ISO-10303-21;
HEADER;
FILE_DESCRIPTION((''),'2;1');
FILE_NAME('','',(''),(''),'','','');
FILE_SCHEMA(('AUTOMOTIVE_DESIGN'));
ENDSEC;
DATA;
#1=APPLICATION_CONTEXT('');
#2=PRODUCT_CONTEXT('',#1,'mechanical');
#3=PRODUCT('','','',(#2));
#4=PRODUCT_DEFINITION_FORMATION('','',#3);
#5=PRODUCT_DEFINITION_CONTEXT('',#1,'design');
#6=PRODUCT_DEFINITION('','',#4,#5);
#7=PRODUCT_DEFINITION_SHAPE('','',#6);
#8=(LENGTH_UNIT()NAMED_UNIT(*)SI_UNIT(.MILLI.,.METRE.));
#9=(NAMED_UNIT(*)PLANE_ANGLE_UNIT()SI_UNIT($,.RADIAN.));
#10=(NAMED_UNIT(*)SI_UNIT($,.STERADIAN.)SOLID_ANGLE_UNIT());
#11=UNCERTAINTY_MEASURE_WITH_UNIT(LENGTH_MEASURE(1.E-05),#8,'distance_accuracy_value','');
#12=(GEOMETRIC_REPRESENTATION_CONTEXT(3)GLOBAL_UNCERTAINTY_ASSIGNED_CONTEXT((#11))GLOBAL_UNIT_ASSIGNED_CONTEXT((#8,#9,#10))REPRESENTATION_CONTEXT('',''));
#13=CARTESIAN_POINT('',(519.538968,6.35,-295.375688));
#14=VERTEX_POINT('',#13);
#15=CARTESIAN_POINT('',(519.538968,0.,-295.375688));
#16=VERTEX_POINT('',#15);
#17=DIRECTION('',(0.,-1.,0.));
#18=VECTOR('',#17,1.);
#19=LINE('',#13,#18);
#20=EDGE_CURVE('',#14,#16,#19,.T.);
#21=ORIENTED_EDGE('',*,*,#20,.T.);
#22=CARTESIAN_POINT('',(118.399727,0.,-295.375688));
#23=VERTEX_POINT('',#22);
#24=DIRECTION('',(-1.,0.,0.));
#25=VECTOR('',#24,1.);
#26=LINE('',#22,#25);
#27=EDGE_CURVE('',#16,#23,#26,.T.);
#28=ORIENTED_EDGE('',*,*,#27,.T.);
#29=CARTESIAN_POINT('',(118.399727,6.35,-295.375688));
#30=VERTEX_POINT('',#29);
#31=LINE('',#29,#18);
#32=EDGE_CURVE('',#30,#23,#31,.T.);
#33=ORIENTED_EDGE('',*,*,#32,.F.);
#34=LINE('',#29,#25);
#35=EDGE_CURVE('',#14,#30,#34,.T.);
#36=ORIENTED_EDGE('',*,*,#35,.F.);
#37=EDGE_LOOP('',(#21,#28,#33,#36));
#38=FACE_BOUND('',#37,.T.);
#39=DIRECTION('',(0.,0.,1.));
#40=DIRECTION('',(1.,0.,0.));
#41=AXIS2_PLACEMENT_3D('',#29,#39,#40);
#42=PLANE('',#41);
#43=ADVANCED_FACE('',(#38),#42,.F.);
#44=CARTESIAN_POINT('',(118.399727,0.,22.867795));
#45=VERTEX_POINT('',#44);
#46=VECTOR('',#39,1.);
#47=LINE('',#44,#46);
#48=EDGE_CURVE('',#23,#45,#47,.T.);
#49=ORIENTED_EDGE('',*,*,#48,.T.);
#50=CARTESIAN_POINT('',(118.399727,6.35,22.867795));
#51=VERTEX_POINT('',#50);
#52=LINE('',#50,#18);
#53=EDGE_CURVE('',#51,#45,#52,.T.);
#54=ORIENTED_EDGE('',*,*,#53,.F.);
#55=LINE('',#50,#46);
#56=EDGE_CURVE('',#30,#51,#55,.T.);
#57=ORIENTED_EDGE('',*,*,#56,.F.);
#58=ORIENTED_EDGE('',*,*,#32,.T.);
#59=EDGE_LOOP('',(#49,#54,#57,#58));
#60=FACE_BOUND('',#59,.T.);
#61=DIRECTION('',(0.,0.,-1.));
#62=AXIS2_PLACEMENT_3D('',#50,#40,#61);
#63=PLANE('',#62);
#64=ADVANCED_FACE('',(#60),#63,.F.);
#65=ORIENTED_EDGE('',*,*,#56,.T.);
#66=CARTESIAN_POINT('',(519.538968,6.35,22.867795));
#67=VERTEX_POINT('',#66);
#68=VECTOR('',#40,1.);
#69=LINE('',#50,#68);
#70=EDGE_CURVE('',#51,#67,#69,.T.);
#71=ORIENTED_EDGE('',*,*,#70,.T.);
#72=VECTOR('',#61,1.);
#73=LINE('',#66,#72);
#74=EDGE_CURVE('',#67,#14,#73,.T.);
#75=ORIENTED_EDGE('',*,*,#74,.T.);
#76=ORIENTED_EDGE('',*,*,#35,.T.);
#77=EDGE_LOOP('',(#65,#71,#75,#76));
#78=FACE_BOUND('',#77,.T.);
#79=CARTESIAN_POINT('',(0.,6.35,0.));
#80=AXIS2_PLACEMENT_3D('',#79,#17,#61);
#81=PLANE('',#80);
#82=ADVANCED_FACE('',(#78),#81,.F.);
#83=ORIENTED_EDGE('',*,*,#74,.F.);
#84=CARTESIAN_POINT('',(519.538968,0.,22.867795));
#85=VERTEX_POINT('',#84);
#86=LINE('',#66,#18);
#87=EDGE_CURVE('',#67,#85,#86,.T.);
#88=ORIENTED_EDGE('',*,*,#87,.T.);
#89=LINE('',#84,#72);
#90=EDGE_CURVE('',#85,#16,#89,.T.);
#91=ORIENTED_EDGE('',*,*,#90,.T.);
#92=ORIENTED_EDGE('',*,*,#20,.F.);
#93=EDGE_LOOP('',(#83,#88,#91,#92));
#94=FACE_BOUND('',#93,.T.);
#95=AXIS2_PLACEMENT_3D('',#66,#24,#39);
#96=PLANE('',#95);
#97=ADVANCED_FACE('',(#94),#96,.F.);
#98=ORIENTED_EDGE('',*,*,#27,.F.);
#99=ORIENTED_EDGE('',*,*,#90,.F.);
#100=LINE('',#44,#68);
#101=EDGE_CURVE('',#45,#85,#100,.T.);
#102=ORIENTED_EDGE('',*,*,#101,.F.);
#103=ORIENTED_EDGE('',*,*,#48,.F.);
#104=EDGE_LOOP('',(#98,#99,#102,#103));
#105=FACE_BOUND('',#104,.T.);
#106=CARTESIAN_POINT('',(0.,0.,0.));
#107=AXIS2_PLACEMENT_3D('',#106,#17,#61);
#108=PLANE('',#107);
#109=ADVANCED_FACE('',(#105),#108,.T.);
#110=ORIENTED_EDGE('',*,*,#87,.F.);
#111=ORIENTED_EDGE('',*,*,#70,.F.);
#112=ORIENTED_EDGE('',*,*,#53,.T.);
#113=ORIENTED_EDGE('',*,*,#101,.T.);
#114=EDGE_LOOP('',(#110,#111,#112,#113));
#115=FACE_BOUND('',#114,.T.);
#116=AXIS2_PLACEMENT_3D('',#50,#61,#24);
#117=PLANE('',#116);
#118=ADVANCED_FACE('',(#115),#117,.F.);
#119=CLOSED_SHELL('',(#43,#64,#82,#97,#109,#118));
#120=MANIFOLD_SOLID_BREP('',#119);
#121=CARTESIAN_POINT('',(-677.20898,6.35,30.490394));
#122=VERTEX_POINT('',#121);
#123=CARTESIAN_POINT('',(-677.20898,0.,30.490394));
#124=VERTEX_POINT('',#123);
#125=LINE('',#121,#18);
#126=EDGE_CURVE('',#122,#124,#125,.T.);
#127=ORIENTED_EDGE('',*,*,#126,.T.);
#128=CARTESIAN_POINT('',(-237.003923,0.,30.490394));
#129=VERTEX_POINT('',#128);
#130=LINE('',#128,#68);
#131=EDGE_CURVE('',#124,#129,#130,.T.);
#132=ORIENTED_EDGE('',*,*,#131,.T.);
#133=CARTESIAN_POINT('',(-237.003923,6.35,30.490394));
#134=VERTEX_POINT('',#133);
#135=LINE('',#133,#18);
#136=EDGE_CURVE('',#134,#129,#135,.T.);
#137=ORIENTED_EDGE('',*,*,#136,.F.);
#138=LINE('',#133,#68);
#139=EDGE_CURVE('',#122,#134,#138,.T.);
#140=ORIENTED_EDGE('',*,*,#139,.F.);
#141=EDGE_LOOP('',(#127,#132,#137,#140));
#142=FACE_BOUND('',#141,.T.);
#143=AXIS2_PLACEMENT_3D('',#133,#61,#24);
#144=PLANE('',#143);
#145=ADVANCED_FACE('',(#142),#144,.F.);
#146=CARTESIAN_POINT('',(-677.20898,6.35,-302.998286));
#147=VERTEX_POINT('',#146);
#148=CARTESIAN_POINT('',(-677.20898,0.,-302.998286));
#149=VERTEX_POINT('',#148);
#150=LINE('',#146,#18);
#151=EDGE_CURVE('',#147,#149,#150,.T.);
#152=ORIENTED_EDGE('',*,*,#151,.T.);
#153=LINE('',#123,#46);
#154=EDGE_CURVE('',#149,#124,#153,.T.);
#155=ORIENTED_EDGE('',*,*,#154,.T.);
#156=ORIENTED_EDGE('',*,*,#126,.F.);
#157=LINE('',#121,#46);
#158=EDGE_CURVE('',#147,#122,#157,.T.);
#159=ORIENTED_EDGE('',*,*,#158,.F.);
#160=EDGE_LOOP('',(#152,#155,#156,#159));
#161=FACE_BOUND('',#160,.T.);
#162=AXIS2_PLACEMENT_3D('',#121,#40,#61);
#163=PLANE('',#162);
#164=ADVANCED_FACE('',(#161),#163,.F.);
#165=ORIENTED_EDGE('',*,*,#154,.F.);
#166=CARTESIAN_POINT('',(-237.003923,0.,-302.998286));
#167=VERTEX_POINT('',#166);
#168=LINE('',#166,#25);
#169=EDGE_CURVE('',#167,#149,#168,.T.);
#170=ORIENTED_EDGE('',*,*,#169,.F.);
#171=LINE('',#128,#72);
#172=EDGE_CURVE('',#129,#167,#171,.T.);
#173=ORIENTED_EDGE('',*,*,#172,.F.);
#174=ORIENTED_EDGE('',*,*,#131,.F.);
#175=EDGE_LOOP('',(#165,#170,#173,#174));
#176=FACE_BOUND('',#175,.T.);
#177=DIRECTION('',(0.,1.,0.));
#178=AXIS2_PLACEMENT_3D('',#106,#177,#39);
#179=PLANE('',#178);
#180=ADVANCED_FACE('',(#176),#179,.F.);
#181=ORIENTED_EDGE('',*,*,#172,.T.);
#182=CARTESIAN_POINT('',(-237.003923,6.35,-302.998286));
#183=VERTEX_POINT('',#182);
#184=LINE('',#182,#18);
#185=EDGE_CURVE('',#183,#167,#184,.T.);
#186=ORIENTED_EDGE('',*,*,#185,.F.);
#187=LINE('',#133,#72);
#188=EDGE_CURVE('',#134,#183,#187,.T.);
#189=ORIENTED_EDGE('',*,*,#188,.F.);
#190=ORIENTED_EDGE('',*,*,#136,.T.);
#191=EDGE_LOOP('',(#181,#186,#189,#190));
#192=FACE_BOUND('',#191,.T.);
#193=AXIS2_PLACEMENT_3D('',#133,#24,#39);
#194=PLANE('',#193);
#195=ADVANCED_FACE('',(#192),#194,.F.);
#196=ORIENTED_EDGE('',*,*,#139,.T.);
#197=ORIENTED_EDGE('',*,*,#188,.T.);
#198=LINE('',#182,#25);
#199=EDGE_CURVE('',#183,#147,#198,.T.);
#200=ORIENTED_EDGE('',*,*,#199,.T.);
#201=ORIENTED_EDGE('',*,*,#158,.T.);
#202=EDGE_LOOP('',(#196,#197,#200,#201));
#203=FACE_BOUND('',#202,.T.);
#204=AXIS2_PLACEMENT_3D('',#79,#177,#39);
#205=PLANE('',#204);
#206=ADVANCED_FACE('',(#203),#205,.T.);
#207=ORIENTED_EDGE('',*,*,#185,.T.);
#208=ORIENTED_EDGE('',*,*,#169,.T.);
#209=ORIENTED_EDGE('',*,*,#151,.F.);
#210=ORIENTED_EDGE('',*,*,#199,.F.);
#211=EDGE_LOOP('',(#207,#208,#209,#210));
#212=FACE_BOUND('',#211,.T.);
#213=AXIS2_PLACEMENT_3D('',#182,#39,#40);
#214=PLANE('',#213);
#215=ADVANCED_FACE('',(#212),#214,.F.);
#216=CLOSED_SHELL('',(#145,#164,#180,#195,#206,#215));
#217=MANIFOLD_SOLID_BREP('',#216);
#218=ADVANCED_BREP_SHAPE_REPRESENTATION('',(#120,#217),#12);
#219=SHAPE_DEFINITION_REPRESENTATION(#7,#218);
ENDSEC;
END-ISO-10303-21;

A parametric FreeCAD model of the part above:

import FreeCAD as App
import Part
import Sketcher

V = App.Vector
Q = App.Units.Quantity

doc = App.newDocument("Part")
body = doc.addObject("PartDesign::Body", "Body")

# Sketch on XZ plane
sketch1 = body.newObject("Sketcher::SketchObject", "Sketch")
sketch1.AttachmentSupport = (doc.getObject("XZ_Plane"), [""])
sketch1.MapMode = "FlatFace"
sketch1.addGeometry([
    Part.LineSegment(V(118, -295, 0), V(118, 23, 0)),
    Part.LineSegment(V(118, 23, 0), V(520, 23, 0)),
    Part.LineSegment(V(520, 23, 0), V(520, -295, 0)),
    Part.LineSegment(V(520, -295, 0), V(118, -295, 0)),
], False)
sketch1.addConstraint([
    Sketcher.Constraint("Coincident", 0, 2, 1, 1),
    Sketcher.Constraint("Coincident", 1, 2, 2, 1),
    Sketcher.Constraint("Coincident", 2, 2, 3, 1),
    Sketcher.Constraint("Coincident", 3, 2, 0, 1),
    Sketcher.Constraint("Vertical", 0),
    Sketcher.Constraint("Horizontal", 1),
    Sketcher.Constraint("Vertical", 2),
    Sketcher.Constraint("Horizontal", 3),
    Sketcher.Constraint("DistanceX", 1, 1, 1, 2, Q("401.13924 mm")),
    Sketcher.Constraint("DistanceY", 0, 1, 0, 2, Q("318.243483 mm")),
    Sketcher.Constraint("DistanceX", -1, 1, 0, 2, Q("118.399727 mm")),
    Sketcher.Constraint("DistanceY", -1, 1, 0, 2, Q("22.867795 mm")),
])
pad1 = body.newObject("PartDesign::Pad", "Pad")
pad1.Profile = sketch1
pad1.Length = Q("0.25 in")
pad1.Reversed = True
body2 = doc.addObject("PartDesign::Body", "Body001")

# Sketch on XZ plane
sketch2 = body2.newObject("Sketcher::SketchObject", "Sketch001")
sketch2.AttachmentSupport = (doc.getObject("XZ_Plane001"), [""])
sketch2.MapMode = "FlatFace"
sketch2.addGeometry([
    Part.LineSegment(V(-677, -303, 0), V(-677, 30, 0)),
    Part.LineSegment(V(-677, 30, 0), V(-237, 30, 0)),
    Part.LineSegment(V(-237, 30, 0), V(-237, -303, 0)),
    Part.LineSegment(V(-237, -303, 0), V(-677, -303, 0)),
], False)
sketch2.addConstraint([
    Sketcher.Constraint("Coincident", 0, 2, 1, 1),
    Sketcher.Constraint("Coincident", 1, 2, 2, 1),
    Sketcher.Constraint("Coincident", 2, 2, 3, 1),
    Sketcher.Constraint("Coincident", 3, 2, 0, 1),
    Sketcher.Constraint("Vertical", 0),
    Sketcher.Constraint("Horizontal", 1),
    Sketcher.Constraint("Vertical", 2),
    Sketcher.Constraint("Horizontal", 3),
    Sketcher.Constraint("DistanceY", 0, 1, 0, 2, Q("333.48868 mm")),
    Sketcher.Constraint("DistanceX", 1, 1, 1, 2, Q("440.205057 mm")),
    Sketcher.Constraint("DistanceX", 0, 2, -1, 1, Q("677.20898 mm")),
    Sketcher.Constraint("DistanceY", -1, 1, 0, 2, Q("30.490394 mm")),
])
pad2 = body2.newObject("PartDesign::Pad", "Pad001")
pad2.Profile = sketch2
pad2.Length = Q("0.25 in")
pad2.Reversed = True

doc.recompute()
